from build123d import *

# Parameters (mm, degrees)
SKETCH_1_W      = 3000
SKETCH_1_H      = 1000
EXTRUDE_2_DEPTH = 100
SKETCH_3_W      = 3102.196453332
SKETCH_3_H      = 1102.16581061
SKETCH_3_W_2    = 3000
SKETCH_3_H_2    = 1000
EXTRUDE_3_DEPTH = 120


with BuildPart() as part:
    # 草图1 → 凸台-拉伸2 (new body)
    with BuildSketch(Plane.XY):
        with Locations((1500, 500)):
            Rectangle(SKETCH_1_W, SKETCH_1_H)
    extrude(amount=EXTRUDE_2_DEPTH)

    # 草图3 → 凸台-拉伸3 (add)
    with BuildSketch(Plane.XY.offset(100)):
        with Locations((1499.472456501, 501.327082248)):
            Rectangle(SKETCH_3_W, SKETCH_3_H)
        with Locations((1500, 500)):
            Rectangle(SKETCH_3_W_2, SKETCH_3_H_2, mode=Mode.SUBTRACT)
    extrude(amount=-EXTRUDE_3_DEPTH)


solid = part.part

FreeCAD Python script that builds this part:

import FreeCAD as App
import Part
import Sketcher

V = App.Vector


def add_polygon(sketch, points):
    """Adds a closed chain of lines whose ends are joined by coincident constraints."""
    first, n = sketch.GeometryCount, len(points)
    for a, b in zip(points, points[1:] + points[:1]):
        sketch.addGeometry(Part.LineSegment(App.Vector(*a, 0), App.Vector(*b, 0)), False)
    for i in range(n):
        sketch.addConstraint(Sketcher.Constraint("Coincident", first + i, 2, first + (i + 1) % n, 1))

doc = App.newDocument("Part")
body = doc.addObject("PartDesign::Body", "Body")

# Sketch on XY plane
sketch1 = body.newObject("Sketcher::SketchObject", "Sketch")
sketch1.AttachmentSupport = (doc.getObject("XY_Plane"), [""])
sketch1.MapMode = "FlatFace"
add_polygon(sketch1, [(0, 1000), (0, 0), (3000, 0), (3000, 1000)])  # lines 0-3
sketch1.addConstraint(Sketcher.Constraint("Vertical", 0))
sketch1.addConstraint(Sketcher.Constraint("Horizontal", 1))
sketch1.addConstraint(Sketcher.Constraint("Vertical", 2))
sketch1.addConstraint(Sketcher.Constraint("Horizontal", 3))
sketch1.addConstraint(Sketcher.Constraint("Coincident", 0, 2, -1, 1))
sketch1.addConstraint(Sketcher.Constraint("DistanceX", 1, 1, 1, 2, 3000.0))
sketch1.addConstraint(Sketcher.Constraint("DistanceY", 0, 2, 0, 1, 1000.0))
pad1 = body.newObject("PartDesign::Pad", "Pad")
pad1.Profile = sketch1
pad1.Length = 100

# Sketch on XY plane
sketch2 = body.newObject("Sketcher::SketchObject", "Sketch001")
sketch2.AttachmentSupport = (doc.getObject("XY_Plane"), [""])
sketch2.MapMode = "FlatFace"
sketch2.AttachmentOffset = App.Placement(V(0, 0, 100), App.Rotation())
add_polygon(sketch2, [(-52, 1052), (-52, -50), (3051, -50), (3051, 1052)])  # lines 0-3
add_polygon(sketch2, [(3000, 0), (0, 0), (0, 1000), (3000, 1000)])  # lines 4-7
sketch2.addConstraint(Sketcher.Constraint("Vertical", 0))
sketch2.addConstraint(Sketcher.Constraint("Horizontal", 1))
sketch2.addConstraint(Sketcher.Constraint("Vertical", 2))
sketch2.addConstraint(Sketcher.Constraint("Horizontal", 3))
sketch2.addConstraint(Sketcher.Constraint("Horizontal", 4))
sketch2.addConstraint(Sketcher.Constraint("Vertical", 5))
sketch2.addConstraint(Sketcher.Constraint("Horizontal", 6))
sketch2.addConstraint(Sketcher.Constraint("Vertical", 7))
sketch2.addConstraint(Sketcher.Constraint("Coincident", 4, 2, -1, 1))
sketch2.addConstraint(Sketcher.Constraint("DistanceX", 4, 2, 4, 1, 3000.0))
sketch2.addConstraint(Sketcher.Constraint("DistanceY", 5, 1, 5, 2, 1000.0))
sketch2.addConstraint(Sketcher.Constraint("DistanceY", 0, 2, 0, 1, 1102.165811))
sketch2.addConstraint(Sketcher.Constraint("DistanceX", 1, 1, 1, 2, 3102.196453))
sketch2.addConstraint(Sketcher.Constraint("DistanceX", 0, 2, -1, 1, 51.62577))
sketch2.addConstraint(Sketcher.Constraint("DistanceY", 0, 2, -1, 1, 49.755823))
pad2 = body.newObject("PartDesign::Pad", "Pad001")
pad2.Profile = sketch2
pad2.Length = 120
pad2.Reversed = True

doc.recompute()
